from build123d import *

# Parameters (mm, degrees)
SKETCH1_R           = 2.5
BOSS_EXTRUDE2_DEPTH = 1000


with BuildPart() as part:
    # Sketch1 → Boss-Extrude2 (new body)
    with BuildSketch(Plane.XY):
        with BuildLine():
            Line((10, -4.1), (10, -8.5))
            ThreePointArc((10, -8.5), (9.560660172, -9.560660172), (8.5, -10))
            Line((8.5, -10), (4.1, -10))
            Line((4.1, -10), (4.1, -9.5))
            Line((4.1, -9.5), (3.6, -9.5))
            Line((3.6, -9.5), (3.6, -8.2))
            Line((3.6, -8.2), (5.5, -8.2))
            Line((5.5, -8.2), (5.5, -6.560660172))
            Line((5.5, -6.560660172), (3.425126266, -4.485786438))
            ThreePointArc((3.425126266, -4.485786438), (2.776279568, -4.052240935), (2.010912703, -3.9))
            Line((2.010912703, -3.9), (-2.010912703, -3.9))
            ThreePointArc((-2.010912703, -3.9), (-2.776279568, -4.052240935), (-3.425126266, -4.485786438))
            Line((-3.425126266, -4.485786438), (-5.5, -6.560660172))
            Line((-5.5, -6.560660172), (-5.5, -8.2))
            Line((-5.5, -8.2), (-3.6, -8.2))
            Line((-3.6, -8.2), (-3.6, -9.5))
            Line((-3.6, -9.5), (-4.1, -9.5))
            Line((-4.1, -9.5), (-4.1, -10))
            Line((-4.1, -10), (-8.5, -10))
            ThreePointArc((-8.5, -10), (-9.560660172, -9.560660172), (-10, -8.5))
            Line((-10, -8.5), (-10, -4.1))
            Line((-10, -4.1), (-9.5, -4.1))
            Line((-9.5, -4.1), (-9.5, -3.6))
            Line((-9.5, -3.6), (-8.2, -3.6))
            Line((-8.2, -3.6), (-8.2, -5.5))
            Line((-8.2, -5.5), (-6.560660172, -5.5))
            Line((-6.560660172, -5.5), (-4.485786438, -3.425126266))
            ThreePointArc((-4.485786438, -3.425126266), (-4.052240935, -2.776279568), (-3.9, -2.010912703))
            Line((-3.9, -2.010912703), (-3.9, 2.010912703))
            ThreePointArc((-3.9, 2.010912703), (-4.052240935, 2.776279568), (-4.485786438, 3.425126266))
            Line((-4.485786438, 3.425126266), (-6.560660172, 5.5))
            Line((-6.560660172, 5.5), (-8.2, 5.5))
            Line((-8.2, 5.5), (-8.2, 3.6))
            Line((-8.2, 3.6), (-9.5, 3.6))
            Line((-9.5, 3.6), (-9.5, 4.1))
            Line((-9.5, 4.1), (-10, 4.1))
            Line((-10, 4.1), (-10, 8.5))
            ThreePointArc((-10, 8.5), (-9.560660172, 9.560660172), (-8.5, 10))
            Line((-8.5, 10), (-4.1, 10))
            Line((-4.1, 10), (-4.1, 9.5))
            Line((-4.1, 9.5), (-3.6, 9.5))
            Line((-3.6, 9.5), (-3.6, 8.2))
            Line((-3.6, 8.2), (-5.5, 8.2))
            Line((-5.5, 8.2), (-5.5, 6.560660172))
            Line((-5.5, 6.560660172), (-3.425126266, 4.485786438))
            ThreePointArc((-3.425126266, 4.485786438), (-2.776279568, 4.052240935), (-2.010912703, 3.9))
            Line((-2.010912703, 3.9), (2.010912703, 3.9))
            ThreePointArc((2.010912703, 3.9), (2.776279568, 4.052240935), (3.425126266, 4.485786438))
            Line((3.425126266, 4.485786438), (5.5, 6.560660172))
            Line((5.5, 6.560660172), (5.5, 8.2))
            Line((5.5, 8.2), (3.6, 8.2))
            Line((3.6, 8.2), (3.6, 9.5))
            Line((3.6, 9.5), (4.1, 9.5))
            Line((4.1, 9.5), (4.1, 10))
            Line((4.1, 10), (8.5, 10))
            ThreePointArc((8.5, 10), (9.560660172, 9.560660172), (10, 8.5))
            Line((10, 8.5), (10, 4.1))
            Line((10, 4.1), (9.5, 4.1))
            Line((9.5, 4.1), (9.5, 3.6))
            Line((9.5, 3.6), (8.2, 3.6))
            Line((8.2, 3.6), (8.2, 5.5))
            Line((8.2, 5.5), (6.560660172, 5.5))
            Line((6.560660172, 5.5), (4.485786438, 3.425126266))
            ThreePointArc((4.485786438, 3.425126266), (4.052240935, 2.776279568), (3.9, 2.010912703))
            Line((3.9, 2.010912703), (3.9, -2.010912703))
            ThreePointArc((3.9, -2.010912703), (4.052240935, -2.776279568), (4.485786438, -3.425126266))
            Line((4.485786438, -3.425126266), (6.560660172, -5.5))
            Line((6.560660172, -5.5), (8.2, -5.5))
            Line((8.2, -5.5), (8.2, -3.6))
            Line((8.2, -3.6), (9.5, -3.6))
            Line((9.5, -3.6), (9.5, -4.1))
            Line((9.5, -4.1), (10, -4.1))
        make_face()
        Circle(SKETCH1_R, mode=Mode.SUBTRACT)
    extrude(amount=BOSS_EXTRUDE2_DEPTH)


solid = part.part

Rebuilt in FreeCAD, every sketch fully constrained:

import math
import FreeCAD as App
import Part
import Sketcher
from FreeCAD import Vector

doc = App.newDocument("Part")
params = doc.addObject("Spreadsheet::Sheet", "Params")
for row, (alias, value) in enumerate([
    ("sketch1_diameter", "5 mm"),
    ("sketch1_radius", "2 mm"),
    ("sketch1_radius2", "1.5 mm"),
    ("sketch1_width", "0.5 mm"),
    ("sketch1_width2", "1.3 mm"),
    ("pad1_length", "1000 mm"),
], start=1):
    params.set(f"A{row}", alias)
    params.set(f"B{row}", "=" + value)
    params.setAlias(f"B{row}", alias)

body = doc.addObject("PartDesign::Body", "Body")

sketch1 = body.newObject("Sketcher::SketchObject", "Sketch")
sketch1.AttachmentSupport = (doc.getObject("XY_Plane"), [""])
sketch1.MapMode = "FlatFace"
sketch1.addGeometry([
    Part.LineSegment(Vector(10, -8.5, 0), Vector(10, -4.1, 0)),
    Part.LineSegment(Vector(10, -4.1, 0), Vector(9.5, -4.1, 0)),
    Part.LineSegment(Vector(9.5, -4.1, 0), Vector(9.5, -3.6, 0)),
    Part.LineSegment(Vector(9.5, -3.6, 0), Vector(8.2, -3.6, 0)),
    Part.LineSegment(Vector(8.2, -3.6, 0), Vector(8.2, -5.5, 0)),
    Part.LineSegment(Vector(8.2, -5.5, 0), Vector(6.56, -5.5, 0)),
    Part.LineSegment(Vector(6.56, -5.5, 0), Vector(4.49, -3.43, 0)),
    Part.ArcOfCircle(Part.Circle(Vector(5.9, -2.01, 0), Vector(0, 0, 1), 2), math.radians(180), math.radians(225)),
    Part.LineSegment(Vector(3.9, -2.01, 0), Vector(3.9, 2.01, 0)),
    Part.ArcOfCircle(Part.Circle(Vector(5.9, 2.01, 0), Vector(0, 0, 1), 2), math.radians(135), math.radians(180)),
    Part.LineSegment(Vector(4.49, 3.43, 0), Vector(6.56, 5.5, 0)),
    Part.LineSegment(Vector(6.56, 5.5, 0), Vector(8.2, 5.5, 0)),
    Part.LineSegment(Vector(8.2, 5.5, 0), Vector(8.2, 3.6, 0)),
    Part.LineSegment(Vector(8.2, 3.6, 0), Vector(9.5, 3.6, 0)),
    Part.LineSegment(Vector(9.5, 3.6, 0), Vector(9.5, 4.1, 0)),
    Part.LineSegment(Vector(9.5, 4.1, 0), Vector(10, 4.1, 0)),
    Part.LineSegment(Vector(10, 4.1, 0), Vector(10, 8.5, 0)),
    Part.ArcOfCircle(Part.Circle(Vector(8.5, 8.5, 0), Vector(0, 0, 1), 1.5), math.radians(0), math.radians(90)),
    Part.LineSegment(Vector(8.5, 10, 0), Vector(4.1, 10, 0)),
    Part.LineSegment(Vector(4.1, 10, 0), Vector(4.1, 9.5, 0)),
    Part.LineSegment(Vector(4.1, 9.5, 0), Vector(3.6, 9.5, 0)),
    Part.LineSegment(Vector(3.6, 9.5, 0), Vector(3.6, 8.2, 0)),
    Part.LineSegment(Vector(3.6, 8.2, 0), Vector(5.5, 8.2, 0)),
    Part.LineSegment(Vector(5.5, 8.2, 0), Vector(5.5, 6.56, 0)),
    Part.LineSegment(Vector(5.5, 6.56, 0), Vector(3.43, 4.49, 0)),
    Part.ArcOfCircle(Part.Circle(Vector(2.01, 5.9, 0), Vector(0, 0, 1), 2), math.radians(-90), math.radians(-45)),
    Part.LineSegment(Vector(2.01, 3.9, 0), Vector(-2.01, 3.9, 0)),
    Part.ArcOfCircle(Part.Circle(Vector(-2.01, 5.9, 0), Vector(0, 0, 1), 2), math.radians(-135), math.radians(-90)),
    Part.LineSegment(Vector(-3.43, 4.49, 0), Vector(-5.5, 6.56, 0)),
    Part.LineSegment(Vector(-5.5, 6.56, 0), Vector(-5.5, 8.2, 0)),
    Part.LineSegment(Vector(-5.5, 8.2, 0), Vector(-3.6, 8.2, 0)),
    Part.LineSegment(Vector(-3.6, 8.2, 0), Vector(-3.6, 9.5, 0)),
    Part.LineSegment(Vector(-3.6, 9.5, 0), Vector(-4.1, 9.5, 0)),
    Part.LineSegment(Vector(-4.1, 9.5, 0), Vector(-4.1, 10, 0)),
    Part.LineSegment(Vector(-4.1, 10, 0), Vector(-8.5, 10, 0)),
    Part.ArcOfCircle(Part.Circle(Vector(-8.5, 8.5, 0), Vector(0, 0, 1), 1.5), math.radians(90), math.radians(180)),
    Part.LineSegment(Vector(-10, 8.5, 0), Vector(-10, 4.1, 0)),
    Part.LineSegment(Vector(-10, 4.1, 0), Vector(-9.5, 4.1, 0)),
    Part.LineSegment(Vector(-9.5, 4.1, 0), Vector(-9.5, 3.6, 0)),
    Part.LineSegment(Vector(-9.5, 3.6, 0), Vector(-8.2, 3.6, 0)),
    Part.LineSegment(Vector(-8.2, 3.6, 0), Vector(-8.2, 5.5, 0)),
    Part.LineSegment(Vector(-8.2, 5.5, 0), Vector(-6.56, 5.5, 0)),
    Part.LineSegment(Vector(-6.56, 5.5, 0), Vector(-4.49, 3.43, 0)),
    Part.ArcOfCircle(Part.Circle(Vector(-5.9, 2.01, 0), Vector(0, 0, 1), 2), math.radians(0), math.radians(45)),
    Part.LineSegment(Vector(-3.9, 2.01, 0), Vector(-3.9, -2.01, 0)),
    Part.ArcOfCircle(Part.Circle(Vector(-5.9, -2.01, 0), Vector(0, 0, 1), 2), math.radians(-45), math.radians(0)),
    Part.LineSegment(Vector(-4.49, -3.43, 0), Vector(-6.56, -5.5, 0)),
    Part.LineSegment(Vector(-6.56, -5.5, 0), Vector(-8.2, -5.5, 0)),
    Part.LineSegment(Vector(-8.2, -5.5, 0), Vector(-8.2, -3.6, 0)),
    Part.LineSegment(Vector(-8.2, -3.6, 0), Vector(-9.5, -3.6, 0)),
    Part.LineSegment(Vector(-9.5, -3.6, 0), Vector(-9.5, -4.1, 0)),
    Part.LineSegment(Vector(-9.5, -4.1, 0), Vector(-10, -4.1, 0)),
    Part.LineSegment(Vector(-10, -4.1, 0), Vector(-10, -8.5, 0)),
    Part.ArcOfCircle(Part.Circle(Vector(-8.5, -8.5, 0), Vector(0, 0, 1), 1.5), math.radians(180), math.radians(270)),
    Part.LineSegment(Vector(-8.5, -10, 0), Vector(-4.1, -10, 0)),
    Part.LineSegment(Vector(-4.1, -10, 0), Vector(-4.1, -9.5, 0)),
    Part.LineSegment(Vector(-4.1, -9.5, 0), Vector(-3.6, -9.5, 0)),
    Part.LineSegment(Vector(-3.6, -9.5, 0), Vector(-3.6, -8.2, 0)),
    Part.LineSegment(Vector(-3.6, -8.2, 0), Vector(-5.5, -8.2, 0)),
    Part.LineSegment(Vector(-5.5, -8.2, 0), Vector(-5.5, -6.56, 0)),
    Part.LineSegment(Vector(-5.5, -6.56, 0), Vector(-3.43, -4.49, 0)),
    Part.ArcOfCircle(Part.Circle(Vector(-2.01, -5.9, 0), Vector(0, 0, 1), 2), math.radians(90), math.radians(135)),
    Part.LineSegment(Vector(-2.01, -3.9, 0), Vector(2.01, -3.9, 0)),
    Part.ArcOfCircle(Part.Circle(Vector(2.01, -5.9, 0), Vector(0, 0, 1), 2), math.radians(45), math.radians(90)),
    Part.LineSegment(Vector(3.43, -4.49, 0), Vector(5.5, -6.56, 0)),
    Part.LineSegment(Vector(5.5, -6.56, 0), Vector(5.5, -8.2, 0)),
    Part.LineSegment(Vector(5.5, -8.2, 0), Vector(3.6, -8.2, 0)),
    Part.LineSegment(Vector(3.6, -8.2, 0), Vector(3.6, -9.5, 0)),
    Part.LineSegment(Vector(3.6, -9.5, 0), Vector(4.1, -9.5, 0)),
    Part.LineSegment(Vector(4.1, -9.5, 0), Vector(4.1, -10, 0)),
    Part.LineSegment(Vector(4.1, -10, 0), Vector(8.5, -10, 0)),
    Part.ArcOfCircle(Part.Circle(Vector(8.5, -8.5, 0), Vector(0, 0, 1), 1.5), math.radians(-90), math.radians(0)),
    Part.Circle(Vector(0, 0, 0), Vector(0, 0, 1), 2.5),
], False)
sketch1.addConstraint([
    Sketcher.Constraint("Coincident", 0, 2, 1, 1),
    Sketcher.Constraint("Coincident", 1, 2, 2, 1),
    Sketcher.Constraint("Coincident", 2, 2, 3, 1),
    Sketcher.Constraint("Coincident", 3, 2, 4, 1),
    Sketcher.Constraint("Coincident", 4, 2, 5, 1),
    Sketcher.Constraint("Coincident", 5, 2, 6, 1),
    Sketcher.Constraint("Tangent", 6, 2, 7, 2),
    Sketcher.Constraint("Tangent", 7, 1, 8, 1),
    Sketcher.Constraint("Tangent", 8, 2, 9, 2),
    Sketcher.Constraint("Tangent", 9, 1, 10, 1),
    Sketcher.Constraint("Coincident", 10, 2, 11, 1),
    Sketcher.Constraint("Coincident", 11, 2, 12, 1),
    Sketcher.Constraint("Coincident", 12, 2, 13, 1),
    Sketcher.Constraint("Coincident", 13, 2, 14, 1),
    Sketcher.Constraint("Coincident", 14, 2, 15, 1),
    Sketcher.Constraint("Coincident", 15, 2, 16, 1),
    Sketcher.Constraint("Tangent", 16, 2, 17, 1),
    Sketcher.Constraint("Tangent", 17, 2, 18, 1),
    Sketcher.Constraint("Coincident", 18, 2, 19, 1),
    Sketcher.Constraint("Coincident", 19, 2, 20, 1),
    Sketcher.Constraint("Coincident", 20, 2, 21, 1),
    Sketcher.Constraint("Coincident", 21, 2, 22, 1),
    Sketcher.Constraint("Coincident", 22, 2, 23, 1),
    Sketcher.Constraint("Coincident", 23, 2, 24, 1),
    Sketcher.Constraint("Tangent", 24, 2, 25, 2),
    Sketcher.Constraint("Tangent", 25, 1, 26, 1),
    Sketcher.Constraint("Tangent", 26, 2, 27, 2),
    Sketcher.Constraint("Tangent", 27, 1, 28, 1),
    Sketcher.Constraint("Coincident", 28, 2, 29, 1),
    Sketcher.Constraint("Coincident", 29, 2, 30, 1),
    Sketcher.Constraint("Coincident", 30, 2, 31, 1),
    Sketcher.Constraint("Coincident", 31, 2, 32, 1),
    Sketcher.Constraint("Coincident", 32, 2, 33, 1),
    Sketcher.Constraint("Coincident", 33, 2, 34, 1),
    Sketcher.Constraint("Tangent", 34, 2, 35, 1),
    Sketcher.Constraint("Tangent", 35, 2, 36, 1),
    Sketcher.Constraint("Coincident", 36, 2, 37, 1),
    Sketcher.Constraint("Coincident", 37, 2, 38, 1),
    Sketcher.Constraint("Coincident", 38, 2, 39, 1),
    Sketcher.Constraint("Coincident", 39, 2, 40, 1),
    Sketcher.Constraint("Coincident", 40, 2, 41, 1),
    Sketcher.Constraint("Coincident", 41, 2, 42, 1),
    Sketcher.Constraint("Tangent", 42, 2, 43, 2),
    Sketcher.Constraint("Tangent", 43, 1, 44, 1),
    Sketcher.Constraint("Tangent", 44, 2, 45, 2),
    Sketcher.Constraint("Tangent", 45, 1, 46, 1),
    Sketcher.Constraint("Coincident", 46, 2, 47, 1),
    Sketcher.Constraint("Coincident", 47, 2, 48, 1),
    Sketcher.Constraint("Coincident", 48, 2, 49, 1),
    Sketcher.Constraint("Coincident", 49, 2, 50, 1),
    Sketcher.Constraint("Coincident", 50, 2, 51, 1),
    Sketcher.Constraint("Coincident", 51, 2, 52, 1),
    Sketcher.Constraint("Tangent", 52, 2, 53, 1),
    Sketcher.Constraint("Tangent", 53, 2, 54, 1),
    Sketcher.Constraint("Coincident", 54, 2, 55, 1),
    Sketcher.Constraint("Coincident", 55, 2, 56, 1),
    Sketcher.Constraint("Coincident", 56, 2, 57, 1),
    Sketcher.Constraint("Coincident", 57, 2, 58, 1),
    Sketcher.Constraint("Coincident", 58, 2, 59, 1),
    Sketcher.Constraint("Coincident", 59, 2, 60, 1),
    Sketcher.Constraint("Tangent", 60, 2, 61, 2),
    Sketcher.Constraint("Tangent", 61, 1, 62, 1),
    Sketcher.Constraint("Tangent", 62, 2, 63, 2),
    Sketcher.Constraint("Tangent", 63, 1, 64, 1),
    Sketcher.Constraint("Coincident", 64, 2, 65, 1),
    Sketcher.Constraint("Coincident", 65, 2, 66, 1),
    Sketcher.Constraint("Coincident", 66, 2, 67, 1),
    Sketcher.Constraint("Coincident", 67, 2, 68, 1),
    Sketcher.Constraint("Coincident", 68, 2, 69, 1),
    Sketcher.Constraint("Coincident", 69, 2, 70, 1),
    Sketcher.Constraint("Tangent", 70, 2, 71, 1),
    Sketcher.Constraint("Tangent", 71, 2, 0, 1),
    Sketcher.Constraint("Vertical", 0),
    Sketcher.Constraint("Horizontal", 1),
    Sketcher.Constraint("Vertical", 2),
    Sketcher.Constraint("Horizontal", 3),
    Sketcher.Constraint("Vertical", 4),
    Sketcher.Constraint("Horizontal", 5),
    Sketcher.Constraint("Vertical", 8),
    Sketcher.Constraint("Horizontal", 11),
    Sketcher.Constraint("Vertical", 12),
    Sketcher.Constraint("Horizontal", 13),
    Sketcher.Constraint("Vertical", 14),
    Sketcher.Constraint("Horizontal", 15),
    Sketcher.Constraint("Vertical", 16),
    Sketcher.Constraint("Horizontal", 18),
    Sketcher.Constraint("Vertical", 19),
    Sketcher.Constraint("Horizontal", 20),
    Sketcher.Constraint("Vertical", 21),
    Sketcher.Constraint("Horizontal", 22),
    Sketcher.Constraint("Vertical", 23),
    Sketcher.Constraint("Horizontal", 26),
    Sketcher.Constraint("Vertical", 29),
    Sketcher.Constraint("Horizontal", 30),
    Sketcher.Constraint("Vertical", 31),
    Sketcher.Constraint("Horizontal", 32),
    Sketcher.Constraint("Vertical", 33),
    Sketcher.Constraint("Horizontal", 34),
    Sketcher.Constraint("Vertical", 36),
    Sketcher.Constraint("Horizontal", 37),
    Sketcher.Constraint("Vertical", 38),
    Sketcher.Constraint("Horizontal", 39),
    Sketcher.Constraint("Vertical", 40),
    Sketcher.Constraint("Horizontal", 41),
    Sketcher.Constraint("Vertical", 44),
    Sketcher.Constraint("Horizontal", 47),
    Sketcher.Constraint("Vertical", 48),
    Sketcher.Constraint("Horizontal", 49),
    Sketcher.Constraint("Vertical", 50),
    Sketcher.Constraint("Horizontal", 51),
    Sketcher.Constraint("Vertical", 52),
    Sketcher.Constraint("Horizontal", 54),
    Sketcher.Constraint("Vertical", 55),
    Sketcher.Constraint("Horizontal", 56),
    Sketcher.Constraint("Vertical", 57),
    Sketcher.Constraint("Horizontal", 58),
    Sketcher.Constraint("Vertical", 59),
    Sketcher.Constraint("Horizontal", 62),
    Sketcher.Constraint("Vertical", 65),
    Sketcher.Constraint("Horizontal", 66),
    Sketcher.Constraint("Vertical", 67),
    Sketcher.Constraint("Horizontal", 68),
    Sketcher.Constraint("Vertical", 69),
    Sketcher.Constraint("Horizontal", 70),
    Sketcher.Constraint("Coincident", 72, 3, -1, 1),
    Sketcher.Constraint("Equal", 7, 9),
    Sketcher.Constraint("Equal", 9, 25),
    Sketcher.Constraint("Equal", 25, 27),
    Sketcher.Constraint("Equal", 17, 35),
    Sketcher.Constraint("Equal", 27, 43),
    Sketcher.Constraint("Equal", 43, 45),
    Sketcher.Constraint("Equal", 35, 53),
    Sketcher.Constraint("Equal", 45, 61),
    Sketcher.Constraint("Equal", 61, 63),
    Sketcher.Constraint("Equal", 53, 71),
    Sketcher.Constraint("Symmetric", 7, 3, 43, 3, -1, 1),
    Sketcher.Constraint("Symmetric", 17, 3, 53, 3, -1, 1),
    Sketcher.Constraint("Symmetric", 25, 3, 61, 3, -1, 1),
    Sketcher.Constraint("Symmetric", 35, 3, 71, 3, -1, 1),
    Sketcher.Constraint("Symmetric", 1, 2, 37, 2, -1, 1),
    Sketcher.Constraint("Symmetric", 3, 2, 39, 2, -1, 1),
    Sketcher.Constraint("Symmetric", 5, 2, 41, 2, -1, 1),
    Sketcher.Constraint("Symmetric", 9, 1, 45, 1, -1, 1),
    Sketcher.Constraint("Symmetric", 11, 2, 47, 2, -1, 1),
    Sketcher.Constraint("Symmetric", 13, 2, 49, 2, -1, 1),
    Sketcher.Constraint("Symmetric", 19, 2, 55, 2, -1, 1),
    Sketcher.Constraint("Symmetric", 21, 2, 57, 2, -1, 1),
    Sketcher.Constraint("Symmetric", 23, 2, 59, 2, -1, 1),
    Sketcher.Constraint("Symmetric", 27, 1, 63, 1, -1, 1),
    Sketcher.Constraint("Symmetric", 29, 2, 65, 2, -1, 1),
    Sketcher.Constraint("Symmetric", 31, 2, 67, 2, -1, 1),
    Sketcher.Constraint("Symmetric", 17, 3, 35, 3, -2),
    Sketcher.Constraint("Symmetric", 24, 2, 27, 1, -2),
    Sketcher.Constraint("Symmetric", 22, 2, 29, 2, -2),
    Sketcher.Constraint("Symmetric", 20, 2, 31, 2, -2),
    Sketcher.Constraint("Symmetric", 14, 2, 37, 2, -2),
    Sketcher.Constraint("Symmetric", 12, 2, 39, 2, -2),
    Sketcher.Constraint("Symmetric", 10, 2, 41, 2, -2),
    Sketcher.Constraint("Perpendicular", 6, 10),
    Sketcher.Constraint("Parallel", 10, 24),
    Sketcher.Constraint("Perpendicular", 24, 28),
    Sketcher.Constraint("Horizontal", 1, 2, 50, 2),
    Sketcher.Constraint("Vertical", 33, 2, 54, 2),
    Sketcher.Constraint("Vertical", 19, 2, 68, 2),
    Sketcher.Constraint("Equal", 15, 20),
    Sketcher.Constraint("Equal", 70, 0),
    Sketcher.Constraint("Equal", 68, 2),
    Sketcher.Constraint("Equal", 66, 4),
    Sketcher.Constraint("Equal", 62, 8),
    Sketcher.Constraint("Equal", 14, 19),
    Sketcher.Constraint("Equal", 49, 21),
    Sketcher.Constraint("Equal", 47, 23),
    Sketcher.Constraint("Equal", 10, 24),
    Sketcher.Constraint("Diameter", 72, 5.0),
    Sketcher.Constraint("Radius", 7, 2.0),
    Sketcher.Constraint("Radius", 17, 1.5),
    Sketcher.Constraint("DistanceX", 1, 2, 1, 1, 0.5),
    Sketcher.Constraint("DistanceX", 3, 2, 3, 1, 1.3),
    Sketcher.Constraint("DistanceX", 18, 2, 18, 1, 4.4),
    Sketcher.Constraint("DistanceX", 22, 1, 22, 2, 1.9),
    Sketcher.Constraint("DistanceX", -1, 1, 0, 2, 10.0),
    Sketcher.Constraint("DistanceX", -1, 1, 7, 3, 5.9),
    Sketcher.Constraint("DistanceX", 5, 2, 5, 1, 1.63934),
])
sketch1.setExpression("Constraints[173]", "Params.sketch1_diameter")
sketch1.setExpression("Constraints[174]", "Params.sketch1_radius")
sketch1.setExpression("Constraints[175]", "Params.sketch1_radius2")
sketch1.setExpression("Constraints[176]", "Params.sketch1_width")
sketch1.setExpression("Constraints[177]", "Params.sketch1_width2")
pad1 = body.newObject("PartDesign::Pad", "Pad")
pad1.Profile = sketch1
pad1.setExpression("Length", "Params.pad1_length")

doc.recompute()
